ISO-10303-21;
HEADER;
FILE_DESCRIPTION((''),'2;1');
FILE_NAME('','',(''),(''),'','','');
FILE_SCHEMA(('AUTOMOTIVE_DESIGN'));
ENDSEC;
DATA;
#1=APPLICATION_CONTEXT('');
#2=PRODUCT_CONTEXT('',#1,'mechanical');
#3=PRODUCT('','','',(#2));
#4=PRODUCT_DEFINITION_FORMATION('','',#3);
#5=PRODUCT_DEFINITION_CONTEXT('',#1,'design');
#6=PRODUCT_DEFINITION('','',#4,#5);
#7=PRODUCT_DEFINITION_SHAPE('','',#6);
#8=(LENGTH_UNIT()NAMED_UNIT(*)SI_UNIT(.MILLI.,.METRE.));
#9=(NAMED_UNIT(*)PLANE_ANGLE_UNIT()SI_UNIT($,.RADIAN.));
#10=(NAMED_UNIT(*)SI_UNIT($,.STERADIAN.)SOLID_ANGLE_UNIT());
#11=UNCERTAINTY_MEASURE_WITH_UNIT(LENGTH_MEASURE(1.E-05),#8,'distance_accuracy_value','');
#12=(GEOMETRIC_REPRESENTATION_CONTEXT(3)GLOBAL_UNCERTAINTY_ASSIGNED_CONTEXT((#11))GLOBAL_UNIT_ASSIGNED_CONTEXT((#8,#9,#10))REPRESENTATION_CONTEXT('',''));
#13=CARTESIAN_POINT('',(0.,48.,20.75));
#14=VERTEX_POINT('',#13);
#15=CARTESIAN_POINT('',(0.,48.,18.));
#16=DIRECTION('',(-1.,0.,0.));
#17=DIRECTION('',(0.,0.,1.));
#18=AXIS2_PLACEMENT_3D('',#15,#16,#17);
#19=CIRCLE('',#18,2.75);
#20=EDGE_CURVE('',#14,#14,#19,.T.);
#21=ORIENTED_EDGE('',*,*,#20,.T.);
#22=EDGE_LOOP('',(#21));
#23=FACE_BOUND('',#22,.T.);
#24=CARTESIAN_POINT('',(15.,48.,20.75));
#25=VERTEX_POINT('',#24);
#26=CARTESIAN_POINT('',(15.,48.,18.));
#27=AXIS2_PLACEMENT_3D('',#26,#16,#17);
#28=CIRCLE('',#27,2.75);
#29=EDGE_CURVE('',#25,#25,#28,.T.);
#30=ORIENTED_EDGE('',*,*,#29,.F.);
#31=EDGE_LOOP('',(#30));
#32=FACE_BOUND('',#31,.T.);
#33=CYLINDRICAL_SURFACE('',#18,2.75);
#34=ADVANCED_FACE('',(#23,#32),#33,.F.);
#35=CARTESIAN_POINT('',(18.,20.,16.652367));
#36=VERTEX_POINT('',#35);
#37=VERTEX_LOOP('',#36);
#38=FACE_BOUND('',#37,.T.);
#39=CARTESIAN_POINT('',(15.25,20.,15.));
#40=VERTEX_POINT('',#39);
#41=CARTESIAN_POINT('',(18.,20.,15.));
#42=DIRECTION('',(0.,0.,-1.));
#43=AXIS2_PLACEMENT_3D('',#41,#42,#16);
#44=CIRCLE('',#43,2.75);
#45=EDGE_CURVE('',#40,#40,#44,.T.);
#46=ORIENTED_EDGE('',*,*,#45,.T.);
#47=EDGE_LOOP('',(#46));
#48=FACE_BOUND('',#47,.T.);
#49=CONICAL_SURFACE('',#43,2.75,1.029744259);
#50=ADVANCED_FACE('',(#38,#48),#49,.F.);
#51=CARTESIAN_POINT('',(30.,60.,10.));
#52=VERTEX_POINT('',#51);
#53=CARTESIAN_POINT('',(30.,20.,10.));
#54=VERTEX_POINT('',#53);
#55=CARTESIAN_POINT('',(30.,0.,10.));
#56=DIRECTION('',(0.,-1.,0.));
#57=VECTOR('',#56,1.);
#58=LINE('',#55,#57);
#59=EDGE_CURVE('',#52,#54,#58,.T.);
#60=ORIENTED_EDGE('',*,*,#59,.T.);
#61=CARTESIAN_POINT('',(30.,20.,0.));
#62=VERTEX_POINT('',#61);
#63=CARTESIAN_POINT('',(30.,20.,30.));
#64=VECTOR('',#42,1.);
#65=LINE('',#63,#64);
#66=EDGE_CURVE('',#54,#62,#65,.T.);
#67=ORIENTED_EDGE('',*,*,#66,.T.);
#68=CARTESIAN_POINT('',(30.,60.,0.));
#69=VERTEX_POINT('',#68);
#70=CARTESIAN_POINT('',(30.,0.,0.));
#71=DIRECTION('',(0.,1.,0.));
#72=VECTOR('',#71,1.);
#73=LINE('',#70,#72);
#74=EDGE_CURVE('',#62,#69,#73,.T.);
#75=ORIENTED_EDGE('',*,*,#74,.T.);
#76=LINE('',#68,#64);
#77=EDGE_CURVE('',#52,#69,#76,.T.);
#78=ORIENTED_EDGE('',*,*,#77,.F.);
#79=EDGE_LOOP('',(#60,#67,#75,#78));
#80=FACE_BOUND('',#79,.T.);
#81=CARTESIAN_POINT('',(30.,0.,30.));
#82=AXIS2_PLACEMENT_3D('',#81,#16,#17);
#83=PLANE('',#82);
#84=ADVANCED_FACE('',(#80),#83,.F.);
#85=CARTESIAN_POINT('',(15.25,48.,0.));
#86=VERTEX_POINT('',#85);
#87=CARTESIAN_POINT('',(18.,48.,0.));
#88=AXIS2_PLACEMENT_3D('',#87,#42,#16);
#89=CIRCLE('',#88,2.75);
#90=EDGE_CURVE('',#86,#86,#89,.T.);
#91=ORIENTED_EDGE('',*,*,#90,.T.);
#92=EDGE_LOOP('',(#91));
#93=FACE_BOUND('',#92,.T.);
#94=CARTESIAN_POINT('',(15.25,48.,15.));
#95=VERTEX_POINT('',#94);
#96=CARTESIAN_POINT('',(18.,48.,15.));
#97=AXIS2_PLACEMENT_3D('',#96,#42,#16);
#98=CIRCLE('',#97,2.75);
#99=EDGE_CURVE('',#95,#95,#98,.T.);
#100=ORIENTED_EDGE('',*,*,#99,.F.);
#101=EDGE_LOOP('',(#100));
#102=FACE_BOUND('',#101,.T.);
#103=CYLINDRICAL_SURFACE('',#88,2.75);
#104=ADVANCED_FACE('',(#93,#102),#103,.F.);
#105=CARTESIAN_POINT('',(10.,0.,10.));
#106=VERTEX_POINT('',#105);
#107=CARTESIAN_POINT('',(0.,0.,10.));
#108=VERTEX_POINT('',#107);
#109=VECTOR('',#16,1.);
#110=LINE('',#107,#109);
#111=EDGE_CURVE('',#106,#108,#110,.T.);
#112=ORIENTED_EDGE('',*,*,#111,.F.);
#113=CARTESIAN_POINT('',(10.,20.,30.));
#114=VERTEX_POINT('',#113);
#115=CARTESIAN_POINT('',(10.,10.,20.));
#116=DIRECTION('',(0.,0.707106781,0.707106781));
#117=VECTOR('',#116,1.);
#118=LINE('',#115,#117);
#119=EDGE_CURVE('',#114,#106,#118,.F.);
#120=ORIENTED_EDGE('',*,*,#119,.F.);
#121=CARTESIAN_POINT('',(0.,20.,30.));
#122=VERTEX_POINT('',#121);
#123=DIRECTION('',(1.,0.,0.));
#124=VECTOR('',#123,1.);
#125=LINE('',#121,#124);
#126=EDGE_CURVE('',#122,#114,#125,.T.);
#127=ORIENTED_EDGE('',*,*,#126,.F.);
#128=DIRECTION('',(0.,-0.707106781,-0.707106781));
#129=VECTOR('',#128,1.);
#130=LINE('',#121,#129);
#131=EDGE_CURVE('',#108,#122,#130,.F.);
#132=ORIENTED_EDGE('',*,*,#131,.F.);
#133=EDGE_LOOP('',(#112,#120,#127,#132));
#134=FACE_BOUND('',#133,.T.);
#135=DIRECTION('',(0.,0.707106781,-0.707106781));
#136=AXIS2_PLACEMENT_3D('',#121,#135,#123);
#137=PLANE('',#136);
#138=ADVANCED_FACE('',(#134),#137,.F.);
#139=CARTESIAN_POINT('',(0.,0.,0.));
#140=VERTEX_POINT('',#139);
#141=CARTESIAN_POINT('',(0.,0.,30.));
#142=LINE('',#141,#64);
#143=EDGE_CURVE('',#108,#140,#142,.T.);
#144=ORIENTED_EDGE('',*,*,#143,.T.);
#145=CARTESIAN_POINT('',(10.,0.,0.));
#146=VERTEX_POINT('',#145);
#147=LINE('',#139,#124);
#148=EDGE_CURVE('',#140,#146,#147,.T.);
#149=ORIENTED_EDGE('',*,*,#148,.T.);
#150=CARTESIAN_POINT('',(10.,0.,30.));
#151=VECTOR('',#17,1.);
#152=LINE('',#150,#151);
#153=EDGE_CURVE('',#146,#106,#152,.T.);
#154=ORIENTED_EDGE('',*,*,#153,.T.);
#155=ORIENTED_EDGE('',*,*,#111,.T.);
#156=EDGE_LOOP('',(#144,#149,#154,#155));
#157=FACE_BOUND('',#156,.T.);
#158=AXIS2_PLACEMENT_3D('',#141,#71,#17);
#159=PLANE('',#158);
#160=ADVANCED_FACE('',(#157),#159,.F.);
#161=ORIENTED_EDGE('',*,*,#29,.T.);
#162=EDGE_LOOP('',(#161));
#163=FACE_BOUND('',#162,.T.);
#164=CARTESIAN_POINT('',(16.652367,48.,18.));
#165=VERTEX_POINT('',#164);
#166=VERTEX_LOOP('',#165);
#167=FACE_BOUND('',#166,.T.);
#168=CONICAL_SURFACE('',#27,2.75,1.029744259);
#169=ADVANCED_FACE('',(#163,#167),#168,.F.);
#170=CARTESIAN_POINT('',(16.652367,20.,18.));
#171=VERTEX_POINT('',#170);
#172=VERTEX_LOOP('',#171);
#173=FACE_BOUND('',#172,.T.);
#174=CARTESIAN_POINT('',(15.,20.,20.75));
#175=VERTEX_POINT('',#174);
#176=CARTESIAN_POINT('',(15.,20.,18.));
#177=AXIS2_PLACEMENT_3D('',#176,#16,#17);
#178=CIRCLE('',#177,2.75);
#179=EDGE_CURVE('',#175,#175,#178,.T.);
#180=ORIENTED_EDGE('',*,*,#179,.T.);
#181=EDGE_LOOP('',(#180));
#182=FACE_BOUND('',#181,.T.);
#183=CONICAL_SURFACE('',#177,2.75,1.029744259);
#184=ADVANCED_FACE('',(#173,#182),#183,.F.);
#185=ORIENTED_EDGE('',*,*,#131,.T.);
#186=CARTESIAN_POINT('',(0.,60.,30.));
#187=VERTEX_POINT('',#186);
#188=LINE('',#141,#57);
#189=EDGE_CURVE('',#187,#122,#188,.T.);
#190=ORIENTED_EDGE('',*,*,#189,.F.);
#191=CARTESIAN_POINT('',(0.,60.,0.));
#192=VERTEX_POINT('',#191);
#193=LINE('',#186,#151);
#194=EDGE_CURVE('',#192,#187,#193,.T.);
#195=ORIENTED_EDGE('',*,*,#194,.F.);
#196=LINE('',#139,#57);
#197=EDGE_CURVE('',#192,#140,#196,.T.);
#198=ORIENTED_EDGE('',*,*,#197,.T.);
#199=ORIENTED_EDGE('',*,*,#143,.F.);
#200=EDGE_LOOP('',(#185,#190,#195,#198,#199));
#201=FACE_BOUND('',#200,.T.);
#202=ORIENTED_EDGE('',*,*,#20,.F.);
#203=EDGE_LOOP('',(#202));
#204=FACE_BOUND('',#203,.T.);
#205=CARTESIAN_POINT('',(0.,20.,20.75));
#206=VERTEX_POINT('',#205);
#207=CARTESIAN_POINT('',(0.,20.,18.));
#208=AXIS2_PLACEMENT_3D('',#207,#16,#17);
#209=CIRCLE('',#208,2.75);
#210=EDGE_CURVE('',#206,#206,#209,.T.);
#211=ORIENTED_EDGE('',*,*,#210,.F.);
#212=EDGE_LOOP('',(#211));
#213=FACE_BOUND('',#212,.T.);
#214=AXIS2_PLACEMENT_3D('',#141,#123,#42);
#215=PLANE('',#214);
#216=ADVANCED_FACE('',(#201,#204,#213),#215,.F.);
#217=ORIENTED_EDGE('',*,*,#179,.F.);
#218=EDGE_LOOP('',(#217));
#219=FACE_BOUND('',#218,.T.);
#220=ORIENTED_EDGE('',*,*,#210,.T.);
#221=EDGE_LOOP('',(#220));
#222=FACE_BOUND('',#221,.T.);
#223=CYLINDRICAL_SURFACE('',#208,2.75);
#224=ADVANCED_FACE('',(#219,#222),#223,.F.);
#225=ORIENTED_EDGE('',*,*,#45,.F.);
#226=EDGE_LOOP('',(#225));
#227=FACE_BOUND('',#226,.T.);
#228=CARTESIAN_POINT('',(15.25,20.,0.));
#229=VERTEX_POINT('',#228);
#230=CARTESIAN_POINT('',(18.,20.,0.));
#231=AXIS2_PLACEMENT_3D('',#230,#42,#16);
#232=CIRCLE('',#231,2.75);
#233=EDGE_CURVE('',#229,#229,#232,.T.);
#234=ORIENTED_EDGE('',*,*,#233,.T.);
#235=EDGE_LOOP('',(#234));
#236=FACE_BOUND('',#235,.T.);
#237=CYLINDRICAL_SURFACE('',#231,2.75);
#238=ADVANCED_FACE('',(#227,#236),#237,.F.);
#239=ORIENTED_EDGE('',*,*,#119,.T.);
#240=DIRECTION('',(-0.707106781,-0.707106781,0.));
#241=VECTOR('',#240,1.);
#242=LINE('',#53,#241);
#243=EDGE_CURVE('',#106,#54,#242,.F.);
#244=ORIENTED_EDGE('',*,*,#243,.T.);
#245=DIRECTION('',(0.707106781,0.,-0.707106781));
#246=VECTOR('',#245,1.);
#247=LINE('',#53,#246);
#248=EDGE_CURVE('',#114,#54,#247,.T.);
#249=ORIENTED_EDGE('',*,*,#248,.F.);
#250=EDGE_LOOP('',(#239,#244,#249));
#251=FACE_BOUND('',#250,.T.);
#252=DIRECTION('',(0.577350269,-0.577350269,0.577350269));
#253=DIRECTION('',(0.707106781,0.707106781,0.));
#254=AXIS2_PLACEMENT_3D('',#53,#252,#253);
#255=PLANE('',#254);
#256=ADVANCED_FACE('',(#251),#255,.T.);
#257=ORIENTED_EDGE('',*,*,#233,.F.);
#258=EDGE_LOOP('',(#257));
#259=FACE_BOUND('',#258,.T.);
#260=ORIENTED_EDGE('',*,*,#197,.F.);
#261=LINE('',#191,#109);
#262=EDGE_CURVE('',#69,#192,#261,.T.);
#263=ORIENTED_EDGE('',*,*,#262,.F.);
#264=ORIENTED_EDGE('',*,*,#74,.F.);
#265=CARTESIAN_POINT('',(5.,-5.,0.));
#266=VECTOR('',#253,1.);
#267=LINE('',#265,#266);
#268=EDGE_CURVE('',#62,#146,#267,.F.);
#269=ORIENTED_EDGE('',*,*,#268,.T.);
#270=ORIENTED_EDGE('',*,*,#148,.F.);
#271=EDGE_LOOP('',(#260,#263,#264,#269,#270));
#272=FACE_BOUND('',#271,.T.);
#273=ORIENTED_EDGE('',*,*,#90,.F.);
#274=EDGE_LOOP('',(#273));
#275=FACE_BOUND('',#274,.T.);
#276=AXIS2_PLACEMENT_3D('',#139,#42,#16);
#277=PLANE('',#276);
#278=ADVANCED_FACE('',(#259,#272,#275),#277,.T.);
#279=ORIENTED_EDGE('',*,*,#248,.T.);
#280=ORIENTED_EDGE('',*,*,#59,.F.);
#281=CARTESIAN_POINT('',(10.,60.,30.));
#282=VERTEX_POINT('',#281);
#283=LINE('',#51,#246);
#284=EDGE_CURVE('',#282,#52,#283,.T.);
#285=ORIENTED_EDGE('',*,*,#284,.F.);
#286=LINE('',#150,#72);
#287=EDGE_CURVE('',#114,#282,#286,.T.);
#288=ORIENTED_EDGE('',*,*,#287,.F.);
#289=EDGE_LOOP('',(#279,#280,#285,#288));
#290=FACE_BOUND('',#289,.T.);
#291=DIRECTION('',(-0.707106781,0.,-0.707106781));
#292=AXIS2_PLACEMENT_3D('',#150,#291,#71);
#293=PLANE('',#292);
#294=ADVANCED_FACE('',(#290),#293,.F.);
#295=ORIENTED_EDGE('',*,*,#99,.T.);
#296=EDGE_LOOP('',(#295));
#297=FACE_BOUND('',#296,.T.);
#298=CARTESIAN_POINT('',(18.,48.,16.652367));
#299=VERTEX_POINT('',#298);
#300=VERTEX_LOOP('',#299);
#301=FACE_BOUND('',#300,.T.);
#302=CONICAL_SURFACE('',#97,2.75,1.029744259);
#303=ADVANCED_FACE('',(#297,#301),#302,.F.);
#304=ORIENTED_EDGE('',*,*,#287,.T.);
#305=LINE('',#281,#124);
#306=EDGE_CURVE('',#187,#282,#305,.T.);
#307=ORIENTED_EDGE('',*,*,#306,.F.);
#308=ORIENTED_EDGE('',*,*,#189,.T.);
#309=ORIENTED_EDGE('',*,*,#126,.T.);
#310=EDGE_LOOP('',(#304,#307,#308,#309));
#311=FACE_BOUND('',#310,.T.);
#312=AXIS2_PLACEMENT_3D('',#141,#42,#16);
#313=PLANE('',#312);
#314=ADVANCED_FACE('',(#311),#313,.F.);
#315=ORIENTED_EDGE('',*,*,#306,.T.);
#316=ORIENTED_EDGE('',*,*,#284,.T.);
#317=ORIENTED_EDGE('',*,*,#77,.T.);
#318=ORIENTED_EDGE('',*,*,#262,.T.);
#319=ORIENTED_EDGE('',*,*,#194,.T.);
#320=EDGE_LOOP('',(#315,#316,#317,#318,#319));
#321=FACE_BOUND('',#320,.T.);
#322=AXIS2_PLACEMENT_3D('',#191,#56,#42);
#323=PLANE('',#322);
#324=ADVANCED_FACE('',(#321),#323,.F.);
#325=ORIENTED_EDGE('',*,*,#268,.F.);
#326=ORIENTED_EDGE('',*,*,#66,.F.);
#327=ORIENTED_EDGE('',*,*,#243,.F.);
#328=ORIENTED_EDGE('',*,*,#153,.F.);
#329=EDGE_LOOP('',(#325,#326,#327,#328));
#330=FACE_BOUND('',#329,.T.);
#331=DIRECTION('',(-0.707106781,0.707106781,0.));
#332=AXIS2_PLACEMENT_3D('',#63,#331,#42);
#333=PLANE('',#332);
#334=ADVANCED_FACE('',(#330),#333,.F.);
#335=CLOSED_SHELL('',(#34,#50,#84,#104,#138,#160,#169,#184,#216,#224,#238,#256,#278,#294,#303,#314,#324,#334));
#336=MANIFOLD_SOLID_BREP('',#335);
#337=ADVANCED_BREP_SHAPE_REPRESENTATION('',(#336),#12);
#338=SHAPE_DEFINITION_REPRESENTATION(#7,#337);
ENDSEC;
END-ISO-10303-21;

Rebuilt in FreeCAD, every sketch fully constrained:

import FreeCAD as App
import Part
import Sketcher

V = App.Vector


def edges_at(feature, points):
    """Names of the edges that pass closest to the given points."""
    edges = feature.Shape.Edges
    near = lambda p: min(range(len(edges)), key=lambda i: edges[i].distToShape(Part.Vertex(*p))[0])
    return sorted({f"Edge{near(p) + 1}" for p in points})


def add_polygon(sketch, points):
    """Adds a closed chain of lines whose ends are joined by coincident constraints."""
    first, n = sketch.GeometryCount, len(points)
    for a, b in zip(points, points[1:] + points[:1]):
        sketch.addGeometry(Part.LineSegment(App.Vector(*a, 0), App.Vector(*b, 0)), False)
    for i in range(n):
        sketch.addConstraint(Sketcher.Constraint("Coincident", first + i, 2, first + (i + 1) % n, 1))

doc = App.newDocument("Part")
body = doc.addObject("PartDesign::Body", "Body")

sketch1 = body.newObject("Sketcher::SketchObject", "Sketch")
sketch1.AttachmentSupport = (doc.getObject("XY_Plane"), [""])
sketch1.MapMode = "FlatFace"
add_polygon(sketch1, [(0, 40), (0, 0), (30, 0), (30, 40)])
sketch1.addConstraint([
    Sketcher.Constraint("Vertical", 0),
    Sketcher.Constraint("Horizontal", 1),
    Sketcher.Constraint("Vertical", 2),
    Sketcher.Constraint("Horizontal", 3),
    Sketcher.Constraint("Coincident", 0, 2, -1, 1),
    Sketcher.Constraint("DistanceX", 1, 1, 1, 2, 30.0),
    Sketcher.Constraint("DistanceY", 0, 2, 0, 1, 40.0),
])
pad1 = body.newObject("PartDesign::Pad", "Pad")
pad1.Profile = sketch1
pad1.Length = 30
doc.recompute()

chamfer = body.newObject("PartDesign::Chamfer", "Chamfer")
chamfer.Base = (pad1, edges_at(pad1, [(30, 20, 30), (30, 0, 15), (15, 0, 30)]))
chamfer.Size = 20

sketch2 = body.newObject("Sketcher::SketchObject", "Sketch001")
sketch2.AttachmentSupport = (doc.getObject("XZ_Plane"), [""])
sketch2.MapMode = "FlatFace"
sketch2.AttachmentOffset = App.Placement(V(0, 0, -40), App.Rotation())
add_polygon(sketch2, [(30, 0), (0, 0), (0, 30), (10, 30), (30, 10)])
sketch2.addConstraint([
    Sketcher.Constraint("Horizontal", 0),
    Sketcher.Constraint("Vertical", 1),
    Sketcher.Constraint("Horizontal", 2),
    Sketcher.Constraint("Vertical", 4),
    Sketcher.Constraint("Coincident", 0, 2, -1, 1),
    Sketcher.Constraint("Equal", 0, 1),
    Sketcher.Constraint("Equal", 2, 4),
    Sketcher.Constraint("DistanceX", 0, 2, 0, 1, 30.0),
    Sketcher.Constraint("DistanceX", 2, 1, 2, 2, 10.0),
])
pad2 = body.newObject("PartDesign::Pad", "Pad001")
pad2.Profile = sketch2
pad2.Length = 20
pad2.Reversed = True

sketch3 = body.newObject("Sketcher::SketchObject", "Sketch002")
sketch3.AttachmentSupport = (doc.getObject("YZ_Plane"), [""])
sketch3.MapMode = "FlatFace"
sketch3.addGeometry([
    Part.Circle(V(20, 18, 0), V(0, 0, 1), 2.8),
    Part.Circle(V(48, 18, 0), V(0, 0, 1), 2.8),
], False)
sketch3.addConstraint([
    Sketcher.Constraint("Equal", 0, 1),
    Sketcher.Constraint("Horizontal", 0, 3, 1, 3),
    Sketcher.Constraint("Diameter", 0, 5.5),
    Sketcher.Constraint("DistanceX", -1, 1, 0, 3, 20.0),
    Sketcher.Constraint("DistanceY", -1, 1, 0, 3, 18.0),
    Sketcher.Constraint("DistanceX", -1, 1, 1, 3, 48.0),
])
doc.recompute()
hole = body.newObject("PartDesign::Hole", "Hole")
hole.Profile = sketch3
hole.ThreadType = "None"
hole.Diameter = 5.5
hole.DepthType = "Dimension"
hole.Depth = 15
hole.DrillPoint = "Angled"
hole.DrillPointAngle = 118
hole.Reversed = True

sketch4 = body.newObject("Sketcher::SketchObject", "Sketch003")
sketch4.AttachmentSupport = (doc.getObject("XY_Plane"), [""])
sketch4.MapMode = "FlatFace"
sketch4.addGeometry([
    Part.Circle(V(18, 20, 0), V(0, 0, 1), 2.8),
    Part.Circle(V(18, 48, 0), V(0, 0, 1), 2.8),
], False)
sketch4.addConstraint([
    Sketcher.Constraint("Equal", 0, 1),
    Sketcher.Constraint("Vertical", 0, 3, 1, 3),
    Sketcher.Constraint("Diameter", 0, 5.5),
    Sketcher.Constraint("DistanceX", -1, 1, 0, 3, 18.0),
    Sketcher.Constraint("DistanceY", -1, 1, 0, 3, 20.0),
    Sketcher.Constraint("DistanceY", -1, 1, 1, 3, 48.0),
])
doc.recompute()
hole2 = body.newObject("PartDesign::Hole", "Hole001")
hole2.Profile = sketch4
hole2.ThreadType = "None"
hole2.Diameter = 5.5
hole2.DepthType = "Dimension"
hole2.Depth = 15
hole2.DrillPoint = "Angled"
hole2.DrillPointAngle = 118
hole2.Reversed = True

doc.recompute()
